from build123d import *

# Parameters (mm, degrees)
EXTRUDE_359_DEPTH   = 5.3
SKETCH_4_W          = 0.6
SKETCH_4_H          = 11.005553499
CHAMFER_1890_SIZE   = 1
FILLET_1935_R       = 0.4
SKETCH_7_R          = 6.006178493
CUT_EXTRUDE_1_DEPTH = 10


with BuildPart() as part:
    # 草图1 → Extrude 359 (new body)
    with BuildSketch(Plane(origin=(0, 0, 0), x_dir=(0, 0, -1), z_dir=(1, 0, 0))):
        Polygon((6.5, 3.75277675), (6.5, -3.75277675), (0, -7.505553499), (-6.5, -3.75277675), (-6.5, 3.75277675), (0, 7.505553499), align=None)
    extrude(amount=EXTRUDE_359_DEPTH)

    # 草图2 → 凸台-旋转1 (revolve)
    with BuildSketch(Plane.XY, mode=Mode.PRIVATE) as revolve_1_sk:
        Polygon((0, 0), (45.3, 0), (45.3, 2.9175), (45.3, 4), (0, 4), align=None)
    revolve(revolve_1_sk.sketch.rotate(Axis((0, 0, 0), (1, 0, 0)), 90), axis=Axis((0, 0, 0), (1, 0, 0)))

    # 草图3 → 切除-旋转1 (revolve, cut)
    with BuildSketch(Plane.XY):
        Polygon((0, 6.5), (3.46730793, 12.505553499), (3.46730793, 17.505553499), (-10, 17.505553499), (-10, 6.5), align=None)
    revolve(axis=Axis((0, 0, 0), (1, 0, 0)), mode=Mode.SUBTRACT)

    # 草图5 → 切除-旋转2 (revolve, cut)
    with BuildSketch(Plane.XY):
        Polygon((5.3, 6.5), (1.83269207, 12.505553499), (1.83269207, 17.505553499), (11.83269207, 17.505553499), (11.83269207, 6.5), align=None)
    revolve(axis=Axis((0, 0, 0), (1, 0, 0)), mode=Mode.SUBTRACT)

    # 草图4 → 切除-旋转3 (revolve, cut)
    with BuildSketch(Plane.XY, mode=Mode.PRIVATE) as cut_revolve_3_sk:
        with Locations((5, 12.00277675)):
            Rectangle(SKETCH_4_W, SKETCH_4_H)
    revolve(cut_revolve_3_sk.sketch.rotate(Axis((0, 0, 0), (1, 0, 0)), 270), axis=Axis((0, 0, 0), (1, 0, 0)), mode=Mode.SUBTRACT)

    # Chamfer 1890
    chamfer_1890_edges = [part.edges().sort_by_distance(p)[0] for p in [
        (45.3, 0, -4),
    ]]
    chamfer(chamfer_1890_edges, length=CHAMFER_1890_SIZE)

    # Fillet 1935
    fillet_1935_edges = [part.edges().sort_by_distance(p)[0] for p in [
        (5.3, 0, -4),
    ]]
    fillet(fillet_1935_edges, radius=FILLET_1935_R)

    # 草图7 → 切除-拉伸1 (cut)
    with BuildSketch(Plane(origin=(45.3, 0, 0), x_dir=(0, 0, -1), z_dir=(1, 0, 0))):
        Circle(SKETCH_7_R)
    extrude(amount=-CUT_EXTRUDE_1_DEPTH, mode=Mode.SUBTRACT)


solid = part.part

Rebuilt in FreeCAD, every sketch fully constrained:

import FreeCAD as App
import Part
import Sketcher
from FreeCAD import Vector
Q = App.Units.Quantity


def edges_at(feature, points):
    """Names of the edges that pass closest to the given points."""
    edges = feature.Shape.Edges
    near = lambda p: min(range(len(edges)), key=lambda i: edges[i].distToShape(Part.Vertex(*p))[0])
    return sorted({f"Edge{near(p) + 1}" for p in points})

doc = App.newDocument("Part")
body = doc.addObject("PartDesign::Body", "Body")

sketch1 = body.newObject("Sketcher::SketchObject", "Sketch")
sketch1.AttachmentSupport = (doc.getObject("YZ_Plane"), [""])
sketch1.MapMode = "FlatFace"
sketch1.addGeometry(Part.LineSegment(Vector(-4, -6, 0), Vector(4, -6, 0)), False)
sketch1.addGeometry(Part.LineSegment(Vector(4, -6, 0), Vector(8, 0, 0)), False)
sketch1.addGeometry(Part.LineSegment(Vector(8, 0, 0), Vector(4, 6, 0)), False)
sketch1.addGeometry(Part.LineSegment(Vector(4, 6, 0), Vector(-4, 6, 0)), False)
sketch1.addGeometry(Part.LineSegment(Vector(-4, 6, 0), Vector(-8, 0, 0)), False)
sketch1.addGeometry(Part.LineSegment(Vector(-8, 0, 0), Vector(-4, -6, 0)), False)
sketch1.addConstraint(Sketcher.Constraint("Coincident", 0, 2, 1, 1))
sketch1.addConstraint(Sketcher.Constraint("Coincident", 1, 2, 2, 1))
sketch1.addConstraint(Sketcher.Constraint("Coincident", 2, 2, 3, 1))
sketch1.addConstraint(Sketcher.Constraint("Coincident", 3, 2, 4, 1))
sketch1.addConstraint(Sketcher.Constraint("Coincident", 4, 2, 5, 1))
sketch1.addConstraint(Sketcher.Constraint("Coincident", 5, 2, 0, 1))
sketch1.addConstraint(Sketcher.Constraint("Horizontal", 0))
sketch1.addConstraint(Sketcher.Constraint("Horizontal", 3))
sketch1.addConstraint(Sketcher.Constraint("Symmetric", 0, 2, 3, 2, -1, 1))
sketch1.addConstraint(Sketcher.Constraint("Symmetric", 1, 2, 4, 2, -1, 1))
sketch1.addConstraint(Sketcher.Constraint("PointOnObject", 1, 2, -1))
sketch1.addConstraint(Sketcher.Constraint("Parallel", 2, 5))
sketch1.addConstraint(Sketcher.Constraint("Vertical", 0, 2, 2, 2))
sketch1.addConstraint(Sketcher.Constraint("Angle", 1, Q("60 deg")))
sketch1.addConstraint(Sketcher.Constraint("DistanceY", 0, 2, 2, 2, 13.0))
sketch1.addConstraint(Sketcher.Constraint("DistanceX", 0, 1, 0, 2, 7.505554))
pad1 = body.newObject("PartDesign::Pad", "Pad")
pad1.Profile = sketch1
pad1.Length = 5.3

sketch2 = body.newObject("Sketcher::SketchObject", "Sketch001")
sketch2.AttachmentSupport = (doc.getObject("XY_Plane"), [""])
sketch2.MapMode = "FlatFace"
sketch2.addGeometry(Part.LineSegment(Vector(0, 0, 0), Vector(45.3, 0, 0)), False)
sketch2.addGeometry(Part.LineSegment(Vector(45.3, 0, 0), Vector(45.3, 4, 0)), False)
sketch2.addGeometry(Part.LineSegment(Vector(45.3, 4, 0), Vector(0, 4, 0)), False)
sketch2.addGeometry(Part.LineSegment(Vector(0, 4, 0), Vector(0, 0, 0)), False)
sketch2.addConstraint(Sketcher.Constraint("Coincident", 0, 2, 1, 1))
sketch2.addConstraint(Sketcher.Constraint("Coincident", 1, 2, 2, 1))
sketch2.addConstraint(Sketcher.Constraint("Coincident", 2, 2, 3, 1))
sketch2.addConstraint(Sketcher.Constraint("Coincident", 3, 2, 0, 1))
sketch2.addConstraint(Sketcher.Constraint("Horizontal", 0))
sketch2.addConstraint(Sketcher.Constraint("Vertical", 1))
sketch2.addConstraint(Sketcher.Constraint("Horizontal", 2))
sketch2.addConstraint(Sketcher.Constraint("Vertical", 3))
sketch2.addConstraint(Sketcher.Constraint("Coincident", 3, 2, -1, 1))
sketch2.addConstraint(Sketcher.Constraint("DistanceY", 1, 1, 1, 2, 4.0))
sketch2.addConstraint(Sketcher.Constraint("DistanceX", 0, 1, 0, 2, 45.3))
revolution = body.newObject("PartDesign::Revolution", "Revolution")
revolution.Profile = sketch2
revolution.ReferenceAxis = (sketch2, ["H_Axis"])
revolution.Angle = 360

sketch3 = body.newObject("Sketcher::SketchObject", "Sketch002")
sketch3.AttachmentSupport = (doc.getObject("XY_Plane"), [""])
sketch3.MapMode = "FlatFace"
sketch3.addGeometry(Part.LineSegment(Vector(0, 6, 0), Vector(3, 13, 0)), False)
sketch3.addGeometry(Part.LineSegment(Vector(3, 13, 0), Vector(3, 18, 0)), False)
sketch3.addGeometry(Part.LineSegment(Vector(3, 18, 0), Vector(-10, 18, 0)), False)
sketch3.addGeometry(Part.LineSegment(Vector(-10, 18, 0), Vector(-10, 6, 0)), False)
sketch3.addGeometry(Part.LineSegment(Vector(-10, 6, 0), Vector(0, 6, 0)), False)
sketch3.addConstraint(Sketcher.Constraint("Coincident", 0, 2, 1, 1))
sketch3.addConstraint(Sketcher.Constraint("Coincident", 1, 2, 2, 1))
sketch3.addConstraint(Sketcher.Constraint("Coincident", 2, 2, 3, 1))
sketch3.addConstraint(Sketcher.Constraint("Coincident", 3, 2, 4, 1))
sketch3.addConstraint(Sketcher.Constraint("Coincident", 4, 2, 0, 1))
sketch3.addConstraint(Sketcher.Constraint("Vertical", 1))
sketch3.addConstraint(Sketcher.Constraint("Horizontal", 2))
sketch3.addConstraint(Sketcher.Constraint("Vertical", 3))
sketch3.addConstraint(Sketcher.Constraint("Horizontal", 4))
sketch3.addConstraint(Sketcher.Constraint("PointOnObject", 4, 2, -2))
sketch3.addConstraint(Sketcher.Constraint("DistanceX", 4, 1, 4, 2, 10.0))
sketch3.addConstraint(Sketcher.Constraint("DistanceY", 1, 1, 1, 2, 5.0))
sketch3.addConstraint(Sketcher.Constraint("Angle", 0, Q("60 deg")))
sketch3.addConstraint(Sketcher.Constraint("DistanceY", -1, 1, 3, 2, 6.5))
sketch3.addConstraint(Sketcher.Constraint("DistanceX", 2, 2, 2, 1, 13.467308))
groove = body.newObject("PartDesign::Groove", "Groove")
groove.Profile = sketch3
groove.ReferenceAxis = (sketch3, ["H_Axis"])
groove.Angle = 360

sketch4 = body.newObject("Sketcher::SketchObject", "Sketch003")
sketch4.AttachmentSupport = (doc.getObject("XY_Plane"), [""])
sketch4.MapMode = "FlatFace"
sketch4.addGeometry(Part.LineSegment(Vector(2, 13, 0), Vector(5, 6, 0)), False)
sketch4.addGeometry(Part.LineSegment(Vector(5, 6, 0), Vector(12, 6, 0)), False)
sketch4.addGeometry(Part.LineSegment(Vector(12, 6, 0), Vector(12, 18, 0)), False)
sketch4.addGeometry(Part.LineSegment(Vector(12, 18, 0), Vector(2, 18, 0)), False)
sketch4.addGeometry(Part.LineSegment(Vector(2, 18, 0), Vector(2, 13, 0)), False)
sketch4.addConstraint(Sketcher.Constraint("Coincident", 0, 2, 1, 1))
sketch4.addConstraint(Sketcher.Constraint("Coincident", 1, 2, 2, 1))
sketch4.addConstraint(Sketcher.Constraint("Coincident", 2, 2, 3, 1))
sketch4.addConstraint(Sketcher.Constraint("Coincident", 3, 2, 4, 1))
sketch4.addConstraint(Sketcher.Constraint("Coincident", 4, 2, 0, 1))
sketch4.addConstraint(Sketcher.Constraint("Horizontal", 1))
sketch4.addConstraint(Sketcher.Constraint("Vertical", 2))
sketch4.addConstraint(Sketcher.Constraint("Horizontal", 3))
sketch4.addConstraint(Sketcher.Constraint("Vertical", 4))
sketch4.addConstraint(Sketcher.Constraint("DistanceX", 3, 2, 3, 1, 10.0))
sketch4.addConstraint(Sketcher.Constraint("DistanceY", 4, 2, 4, 1, 5.0))
sketch4.addConstraint(Sketcher.Constraint("Angle", 0, Q("-60 deg")))
sketch4.addConstraint(Sketcher.Constraint("DistanceX", -1, 1, 0, 2, 5.3))
sketch4.addConstraint(Sketcher.Constraint("DistanceY", -1, 1, 0, 2, 6.5))
sketch4.addConstraint(Sketcher.Constraint("DistanceX", 1, 1, 1, 2, 6.532692))
groove2 = body.newObject("PartDesign::Groove", "Groove001")
groove2.Profile = sketch4
groove2.ReferenceAxis = (sketch4, ["H_Axis"])
groove2.Angle = 360

sketch5 = body.newObject("Sketcher::SketchObject", "Sketch004")
sketch5.AttachmentSupport = (doc.getObject("XY_Plane"), [""])
sketch5.MapMode = "FlatFace"
sketch5.addGeometry(Part.LineSegment(Vector(4.7, 17.5, 0), Vector(4.7, 6.5, 0)), False)
sketch5.addGeometry(Part.LineSegment(Vector(4.7, 6.5, 0), Vector(5.3, 6.5, 0)), False)
sketch5.addGeometry(Part.LineSegment(Vector(5.3, 6.5, 0), Vector(5.3, 17.5, 0)), False)
sketch5.addGeometry(Part.LineSegment(Vector(5.3, 17.5, 0), Vector(4.7, 17.5, 0)), False)
sketch5.addConstraint(Sketcher.Constraint("Coincident", 0, 2, 1, 1))
sketch5.addConstraint(Sketcher.Constraint("Coincident", 1, 2, 2, 1))
sketch5.addConstraint(Sketcher.Constraint("Coincident", 2, 2, 3, 1))
sketch5.addConstraint(Sketcher.Constraint("Coincident", 3, 2, 0, 1))
sketch5.addConstraint(Sketcher.Constraint("Vertical", 0))
sketch5.addConstraint(Sketcher.Constraint("Horizontal", 1))
sketch5.addConstraint(Sketcher.Constraint("Vertical", 2))
sketch5.addConstraint(Sketcher.Constraint("Horizontal", 3))
sketch5.addConstraint(Sketcher.Constraint("DistanceX", 1, 1, 1, 2, 0.6))
sketch5.addConstraint(Sketcher.Constraint("DistanceX", -1, 1, 0, 2, 4.7))
sketch5.addConstraint(Sketcher.Constraint("DistanceY", -1, 1, 0, 2, 6.5))
sketch5.addConstraint(Sketcher.Constraint("DistanceY", 0, 2, 0, 1, 11.005553))
groove3 = body.newObject("PartDesign::Groove", "Groove002")
groove3.Profile = sketch5
groove3.ReferenceAxis = (sketch5, ["H_Axis"])
groove3.Angle = 360
doc.recompute()

chamfer = body.newObject("PartDesign::Chamfer", "Chamfer")
chamfer.Base = (groove3, edges_at(groove3, [(45.3, 0, -4)]))
chamfer.Size = 1
doc.recompute()

fillet = body.newObject("PartDesign::Fillet", "Fillet")
fillet.Base = (chamfer, edges_at(chamfer, [(5.3, 0, -4)]))
fillet.Radius = 0.4

sketch6 = body.newObject("Sketcher::SketchObject", "Sketch005")
sketch6.AttachmentSupport = (doc.getObject("YZ_Plane"), [""])
sketch6.MapMode = "FlatFace"
sketch6.AttachmentOffset = App.Placement(Vector(0, 0, 45.3), App.Rotation())
sketch6.addGeometry(Part.Circle(Vector(0, 0, 0), Vector(0, 0, 1), 6), False)
sketch6.addConstraint(Sketcher.Constraint("Coincident", 0, 3, -1, 1))
sketch6.addConstraint(Sketcher.Constraint("Diameter", 0, 12.012357))
pocket1 = body.newObject("PartDesign::Pocket", "Pocket")
pocket1.Profile = sketch6
pocket1.Length = 10

doc.recompute()
